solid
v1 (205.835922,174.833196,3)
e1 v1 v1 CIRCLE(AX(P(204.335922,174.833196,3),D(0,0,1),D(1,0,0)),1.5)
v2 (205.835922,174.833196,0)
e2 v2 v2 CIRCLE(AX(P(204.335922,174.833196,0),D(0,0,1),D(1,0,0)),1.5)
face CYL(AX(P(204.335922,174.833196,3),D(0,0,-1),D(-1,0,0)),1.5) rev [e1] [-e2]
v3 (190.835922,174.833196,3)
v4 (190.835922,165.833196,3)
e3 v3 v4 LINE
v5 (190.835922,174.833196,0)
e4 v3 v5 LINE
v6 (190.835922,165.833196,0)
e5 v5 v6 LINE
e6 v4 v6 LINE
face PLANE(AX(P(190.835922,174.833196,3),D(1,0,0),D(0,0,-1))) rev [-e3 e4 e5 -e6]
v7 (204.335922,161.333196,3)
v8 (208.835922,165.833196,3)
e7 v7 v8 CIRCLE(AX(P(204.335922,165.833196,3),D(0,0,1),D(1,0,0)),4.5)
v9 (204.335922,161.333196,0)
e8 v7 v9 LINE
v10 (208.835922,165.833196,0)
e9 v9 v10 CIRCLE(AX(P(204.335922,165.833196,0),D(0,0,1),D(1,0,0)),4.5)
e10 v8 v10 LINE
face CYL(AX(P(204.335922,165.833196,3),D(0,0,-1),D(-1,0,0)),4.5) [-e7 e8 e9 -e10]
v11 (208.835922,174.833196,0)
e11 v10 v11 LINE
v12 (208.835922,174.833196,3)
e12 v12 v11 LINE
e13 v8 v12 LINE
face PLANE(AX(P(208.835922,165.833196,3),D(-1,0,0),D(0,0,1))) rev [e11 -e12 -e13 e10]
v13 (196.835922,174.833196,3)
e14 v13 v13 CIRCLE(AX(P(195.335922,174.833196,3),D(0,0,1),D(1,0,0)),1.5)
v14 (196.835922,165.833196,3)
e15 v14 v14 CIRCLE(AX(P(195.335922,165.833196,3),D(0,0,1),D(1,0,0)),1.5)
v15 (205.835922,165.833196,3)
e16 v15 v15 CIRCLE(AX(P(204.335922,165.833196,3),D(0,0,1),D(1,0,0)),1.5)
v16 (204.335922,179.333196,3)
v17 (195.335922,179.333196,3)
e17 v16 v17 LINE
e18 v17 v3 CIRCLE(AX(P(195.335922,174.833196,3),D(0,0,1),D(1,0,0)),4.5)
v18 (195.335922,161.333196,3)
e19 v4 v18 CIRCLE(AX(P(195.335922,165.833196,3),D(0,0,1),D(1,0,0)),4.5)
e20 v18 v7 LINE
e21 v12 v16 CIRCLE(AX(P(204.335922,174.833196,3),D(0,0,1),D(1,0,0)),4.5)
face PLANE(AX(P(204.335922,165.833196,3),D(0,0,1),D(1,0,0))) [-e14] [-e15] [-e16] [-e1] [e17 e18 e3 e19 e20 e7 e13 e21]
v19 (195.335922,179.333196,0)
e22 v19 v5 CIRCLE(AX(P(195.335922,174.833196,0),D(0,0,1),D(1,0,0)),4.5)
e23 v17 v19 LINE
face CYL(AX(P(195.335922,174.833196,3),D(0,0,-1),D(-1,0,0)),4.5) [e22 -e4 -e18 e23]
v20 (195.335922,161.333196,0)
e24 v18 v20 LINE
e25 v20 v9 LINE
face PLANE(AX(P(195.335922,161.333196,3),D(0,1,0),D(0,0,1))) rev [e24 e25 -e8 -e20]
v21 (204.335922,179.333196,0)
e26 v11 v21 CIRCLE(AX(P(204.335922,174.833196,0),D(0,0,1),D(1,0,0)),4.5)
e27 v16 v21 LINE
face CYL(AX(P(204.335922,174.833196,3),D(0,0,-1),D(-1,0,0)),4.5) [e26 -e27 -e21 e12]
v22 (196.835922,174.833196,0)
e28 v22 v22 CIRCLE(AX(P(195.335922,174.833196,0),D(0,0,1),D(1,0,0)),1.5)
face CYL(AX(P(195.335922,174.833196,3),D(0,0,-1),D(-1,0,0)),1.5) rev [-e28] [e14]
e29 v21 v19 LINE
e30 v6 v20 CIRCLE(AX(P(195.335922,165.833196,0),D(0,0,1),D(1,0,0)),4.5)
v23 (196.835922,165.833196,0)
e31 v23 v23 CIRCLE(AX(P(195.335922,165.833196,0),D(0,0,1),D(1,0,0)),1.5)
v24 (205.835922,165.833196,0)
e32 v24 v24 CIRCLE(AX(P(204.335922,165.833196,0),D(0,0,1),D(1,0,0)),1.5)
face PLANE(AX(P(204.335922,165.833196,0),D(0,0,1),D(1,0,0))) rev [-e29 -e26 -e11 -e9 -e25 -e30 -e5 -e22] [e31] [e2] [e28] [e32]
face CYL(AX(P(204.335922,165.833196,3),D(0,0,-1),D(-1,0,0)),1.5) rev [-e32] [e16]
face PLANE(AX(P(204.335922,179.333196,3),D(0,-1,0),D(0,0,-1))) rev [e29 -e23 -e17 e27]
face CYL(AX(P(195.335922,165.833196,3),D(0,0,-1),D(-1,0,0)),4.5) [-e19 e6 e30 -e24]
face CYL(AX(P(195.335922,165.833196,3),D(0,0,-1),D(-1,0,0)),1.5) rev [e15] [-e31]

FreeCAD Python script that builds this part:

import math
import FreeCAD as App
import Part
import Sketcher
from FreeCAD import Vector
Q = App.Units.Quantity

doc = App.newDocument("Part")
body = doc.addObject("PartDesign::Body", "Body")

# Sketch on XY plane
sketch1 = doc.addObject("Sketcher::SketchObject", "Sketch")
body.addObject(sketch1)
sketch1.AttachmentSupport = (doc.XY_Plane, [""])
sketch1.MapMode = "FlatFace"
sketch1.addGeometry([
    Part.LineSegment(Vector(195.3, 161.3, 0), Vector(204.3, 161.3, 0)),  # 0
    Part.ArcOfCircle(Part.Circle(Vector(204.3, 165.8, 0), Vector(0, 0, 1), 4.5), math.radians(-90), math.radians(0)),  # 1
    Part.LineSegment(Vector(208.8, 165.8, 0), Vector(208.8, 174.8, 0)),  # 2
    Part.ArcOfCircle(Part.Circle(Vector(204.3, 174.8, 0), Vector(0, 0, 1), 4.5), math.radians(0), math.radians(90)),  # 3
    Part.LineSegment(Vector(204.3, 179.3, 0), Vector(195.3, 179.3, 0)),  # 4
    Part.ArcOfCircle(Part.Circle(Vector(195.3, 174.8, 0), Vector(0, 0, 1), 4.5), math.radians(90), math.radians(180)),  # 5
    Part.LineSegment(Vector(190.8, 174.8, 0), Vector(190.8, 165.8, 0)),  # 6
    Part.ArcOfCircle(Part.Circle(Vector(195.3, 165.8, 0), Vector(0, 0, 1), 4.5), math.radians(180), math.radians(270)),  # 7
    Part.Circle(Vector(195.3, 165.8, 0), Vector(0, 0, 1), 1.5),  # 8
    Part.Circle(Vector(204.3, 165.8, 0), Vector(0, 0, 1), 1.5),  # 9
    Part.Circle(Vector(195.3, 174.8, 0), Vector(0, 0, 1), 1.5),  # 10
    Part.Circle(Vector(204.3, 174.8, 0), Vector(0, 0, 1), 1.5),  # 11
], False)
sketch1.addConstraint([
    Sketcher.Constraint("Tangent", 0, 2, 1, 1),
    Sketcher.Constraint("Tangent", 1, 2, 2, 1),
    Sketcher.Constraint("Tangent", 2, 2, 3, 1),
    Sketcher.Constraint("Tangent", 3, 2, 4, 1),
    Sketcher.Constraint("Tangent", 4, 2, 5, 1),
    Sketcher.Constraint("Tangent", 5, 2, 6, 1),
    Sketcher.Constraint("Tangent", 6, 2, 7, 1),
    Sketcher.Constraint("Tangent", 7, 2, 0, 1),
    Sketcher.Constraint("Horizontal", 0),
    Sketcher.Constraint("Vertical", 2),
    Sketcher.Constraint("Horizontal", 4),
    Sketcher.Constraint("Vertical", 6),
    Sketcher.Constraint("Coincident", 8, 3, 7, 3),
    Sketcher.Constraint("Coincident", 9, 3, 1, 3),
    Sketcher.Constraint("Coincident", 10, 3, 5, 3),
    Sketcher.Constraint("Coincident", 11, 3, 3, 3),
    Sketcher.Constraint("Equal", 1, 3),
    Sketcher.Constraint("Equal", 3, 5),
    Sketcher.Constraint("Equal", 5, 7),
    Sketcher.Constraint("Equal", 8, 9),
    Sketcher.Constraint("Equal", 9, 10),
    Sketcher.Constraint("Equal", 10, 11),
    Sketcher.Constraint("Equal", 4, 2),
    Sketcher.Constraint("Diameter", 8, Q("3 mm")),
    Sketcher.Constraint("Radius", 1, Q("4.5 mm")),
    Sketcher.Constraint("DistanceX", 0, 1, 0, 2, Q("9 mm")),
    Sketcher.Constraint("DistanceX", -1, 1, 1, 3, Q("204.335922 mm")),
    Sketcher.Constraint("DistanceY", -1, 1, 1, 3, Q("165.833196 mm")),
])
pad1 = doc.addObject("PartDesign::Pad", "Pad")
body.addObject(pad1)
pad1.Profile = sketch1
pad1.Length = 3

doc.recompute()
